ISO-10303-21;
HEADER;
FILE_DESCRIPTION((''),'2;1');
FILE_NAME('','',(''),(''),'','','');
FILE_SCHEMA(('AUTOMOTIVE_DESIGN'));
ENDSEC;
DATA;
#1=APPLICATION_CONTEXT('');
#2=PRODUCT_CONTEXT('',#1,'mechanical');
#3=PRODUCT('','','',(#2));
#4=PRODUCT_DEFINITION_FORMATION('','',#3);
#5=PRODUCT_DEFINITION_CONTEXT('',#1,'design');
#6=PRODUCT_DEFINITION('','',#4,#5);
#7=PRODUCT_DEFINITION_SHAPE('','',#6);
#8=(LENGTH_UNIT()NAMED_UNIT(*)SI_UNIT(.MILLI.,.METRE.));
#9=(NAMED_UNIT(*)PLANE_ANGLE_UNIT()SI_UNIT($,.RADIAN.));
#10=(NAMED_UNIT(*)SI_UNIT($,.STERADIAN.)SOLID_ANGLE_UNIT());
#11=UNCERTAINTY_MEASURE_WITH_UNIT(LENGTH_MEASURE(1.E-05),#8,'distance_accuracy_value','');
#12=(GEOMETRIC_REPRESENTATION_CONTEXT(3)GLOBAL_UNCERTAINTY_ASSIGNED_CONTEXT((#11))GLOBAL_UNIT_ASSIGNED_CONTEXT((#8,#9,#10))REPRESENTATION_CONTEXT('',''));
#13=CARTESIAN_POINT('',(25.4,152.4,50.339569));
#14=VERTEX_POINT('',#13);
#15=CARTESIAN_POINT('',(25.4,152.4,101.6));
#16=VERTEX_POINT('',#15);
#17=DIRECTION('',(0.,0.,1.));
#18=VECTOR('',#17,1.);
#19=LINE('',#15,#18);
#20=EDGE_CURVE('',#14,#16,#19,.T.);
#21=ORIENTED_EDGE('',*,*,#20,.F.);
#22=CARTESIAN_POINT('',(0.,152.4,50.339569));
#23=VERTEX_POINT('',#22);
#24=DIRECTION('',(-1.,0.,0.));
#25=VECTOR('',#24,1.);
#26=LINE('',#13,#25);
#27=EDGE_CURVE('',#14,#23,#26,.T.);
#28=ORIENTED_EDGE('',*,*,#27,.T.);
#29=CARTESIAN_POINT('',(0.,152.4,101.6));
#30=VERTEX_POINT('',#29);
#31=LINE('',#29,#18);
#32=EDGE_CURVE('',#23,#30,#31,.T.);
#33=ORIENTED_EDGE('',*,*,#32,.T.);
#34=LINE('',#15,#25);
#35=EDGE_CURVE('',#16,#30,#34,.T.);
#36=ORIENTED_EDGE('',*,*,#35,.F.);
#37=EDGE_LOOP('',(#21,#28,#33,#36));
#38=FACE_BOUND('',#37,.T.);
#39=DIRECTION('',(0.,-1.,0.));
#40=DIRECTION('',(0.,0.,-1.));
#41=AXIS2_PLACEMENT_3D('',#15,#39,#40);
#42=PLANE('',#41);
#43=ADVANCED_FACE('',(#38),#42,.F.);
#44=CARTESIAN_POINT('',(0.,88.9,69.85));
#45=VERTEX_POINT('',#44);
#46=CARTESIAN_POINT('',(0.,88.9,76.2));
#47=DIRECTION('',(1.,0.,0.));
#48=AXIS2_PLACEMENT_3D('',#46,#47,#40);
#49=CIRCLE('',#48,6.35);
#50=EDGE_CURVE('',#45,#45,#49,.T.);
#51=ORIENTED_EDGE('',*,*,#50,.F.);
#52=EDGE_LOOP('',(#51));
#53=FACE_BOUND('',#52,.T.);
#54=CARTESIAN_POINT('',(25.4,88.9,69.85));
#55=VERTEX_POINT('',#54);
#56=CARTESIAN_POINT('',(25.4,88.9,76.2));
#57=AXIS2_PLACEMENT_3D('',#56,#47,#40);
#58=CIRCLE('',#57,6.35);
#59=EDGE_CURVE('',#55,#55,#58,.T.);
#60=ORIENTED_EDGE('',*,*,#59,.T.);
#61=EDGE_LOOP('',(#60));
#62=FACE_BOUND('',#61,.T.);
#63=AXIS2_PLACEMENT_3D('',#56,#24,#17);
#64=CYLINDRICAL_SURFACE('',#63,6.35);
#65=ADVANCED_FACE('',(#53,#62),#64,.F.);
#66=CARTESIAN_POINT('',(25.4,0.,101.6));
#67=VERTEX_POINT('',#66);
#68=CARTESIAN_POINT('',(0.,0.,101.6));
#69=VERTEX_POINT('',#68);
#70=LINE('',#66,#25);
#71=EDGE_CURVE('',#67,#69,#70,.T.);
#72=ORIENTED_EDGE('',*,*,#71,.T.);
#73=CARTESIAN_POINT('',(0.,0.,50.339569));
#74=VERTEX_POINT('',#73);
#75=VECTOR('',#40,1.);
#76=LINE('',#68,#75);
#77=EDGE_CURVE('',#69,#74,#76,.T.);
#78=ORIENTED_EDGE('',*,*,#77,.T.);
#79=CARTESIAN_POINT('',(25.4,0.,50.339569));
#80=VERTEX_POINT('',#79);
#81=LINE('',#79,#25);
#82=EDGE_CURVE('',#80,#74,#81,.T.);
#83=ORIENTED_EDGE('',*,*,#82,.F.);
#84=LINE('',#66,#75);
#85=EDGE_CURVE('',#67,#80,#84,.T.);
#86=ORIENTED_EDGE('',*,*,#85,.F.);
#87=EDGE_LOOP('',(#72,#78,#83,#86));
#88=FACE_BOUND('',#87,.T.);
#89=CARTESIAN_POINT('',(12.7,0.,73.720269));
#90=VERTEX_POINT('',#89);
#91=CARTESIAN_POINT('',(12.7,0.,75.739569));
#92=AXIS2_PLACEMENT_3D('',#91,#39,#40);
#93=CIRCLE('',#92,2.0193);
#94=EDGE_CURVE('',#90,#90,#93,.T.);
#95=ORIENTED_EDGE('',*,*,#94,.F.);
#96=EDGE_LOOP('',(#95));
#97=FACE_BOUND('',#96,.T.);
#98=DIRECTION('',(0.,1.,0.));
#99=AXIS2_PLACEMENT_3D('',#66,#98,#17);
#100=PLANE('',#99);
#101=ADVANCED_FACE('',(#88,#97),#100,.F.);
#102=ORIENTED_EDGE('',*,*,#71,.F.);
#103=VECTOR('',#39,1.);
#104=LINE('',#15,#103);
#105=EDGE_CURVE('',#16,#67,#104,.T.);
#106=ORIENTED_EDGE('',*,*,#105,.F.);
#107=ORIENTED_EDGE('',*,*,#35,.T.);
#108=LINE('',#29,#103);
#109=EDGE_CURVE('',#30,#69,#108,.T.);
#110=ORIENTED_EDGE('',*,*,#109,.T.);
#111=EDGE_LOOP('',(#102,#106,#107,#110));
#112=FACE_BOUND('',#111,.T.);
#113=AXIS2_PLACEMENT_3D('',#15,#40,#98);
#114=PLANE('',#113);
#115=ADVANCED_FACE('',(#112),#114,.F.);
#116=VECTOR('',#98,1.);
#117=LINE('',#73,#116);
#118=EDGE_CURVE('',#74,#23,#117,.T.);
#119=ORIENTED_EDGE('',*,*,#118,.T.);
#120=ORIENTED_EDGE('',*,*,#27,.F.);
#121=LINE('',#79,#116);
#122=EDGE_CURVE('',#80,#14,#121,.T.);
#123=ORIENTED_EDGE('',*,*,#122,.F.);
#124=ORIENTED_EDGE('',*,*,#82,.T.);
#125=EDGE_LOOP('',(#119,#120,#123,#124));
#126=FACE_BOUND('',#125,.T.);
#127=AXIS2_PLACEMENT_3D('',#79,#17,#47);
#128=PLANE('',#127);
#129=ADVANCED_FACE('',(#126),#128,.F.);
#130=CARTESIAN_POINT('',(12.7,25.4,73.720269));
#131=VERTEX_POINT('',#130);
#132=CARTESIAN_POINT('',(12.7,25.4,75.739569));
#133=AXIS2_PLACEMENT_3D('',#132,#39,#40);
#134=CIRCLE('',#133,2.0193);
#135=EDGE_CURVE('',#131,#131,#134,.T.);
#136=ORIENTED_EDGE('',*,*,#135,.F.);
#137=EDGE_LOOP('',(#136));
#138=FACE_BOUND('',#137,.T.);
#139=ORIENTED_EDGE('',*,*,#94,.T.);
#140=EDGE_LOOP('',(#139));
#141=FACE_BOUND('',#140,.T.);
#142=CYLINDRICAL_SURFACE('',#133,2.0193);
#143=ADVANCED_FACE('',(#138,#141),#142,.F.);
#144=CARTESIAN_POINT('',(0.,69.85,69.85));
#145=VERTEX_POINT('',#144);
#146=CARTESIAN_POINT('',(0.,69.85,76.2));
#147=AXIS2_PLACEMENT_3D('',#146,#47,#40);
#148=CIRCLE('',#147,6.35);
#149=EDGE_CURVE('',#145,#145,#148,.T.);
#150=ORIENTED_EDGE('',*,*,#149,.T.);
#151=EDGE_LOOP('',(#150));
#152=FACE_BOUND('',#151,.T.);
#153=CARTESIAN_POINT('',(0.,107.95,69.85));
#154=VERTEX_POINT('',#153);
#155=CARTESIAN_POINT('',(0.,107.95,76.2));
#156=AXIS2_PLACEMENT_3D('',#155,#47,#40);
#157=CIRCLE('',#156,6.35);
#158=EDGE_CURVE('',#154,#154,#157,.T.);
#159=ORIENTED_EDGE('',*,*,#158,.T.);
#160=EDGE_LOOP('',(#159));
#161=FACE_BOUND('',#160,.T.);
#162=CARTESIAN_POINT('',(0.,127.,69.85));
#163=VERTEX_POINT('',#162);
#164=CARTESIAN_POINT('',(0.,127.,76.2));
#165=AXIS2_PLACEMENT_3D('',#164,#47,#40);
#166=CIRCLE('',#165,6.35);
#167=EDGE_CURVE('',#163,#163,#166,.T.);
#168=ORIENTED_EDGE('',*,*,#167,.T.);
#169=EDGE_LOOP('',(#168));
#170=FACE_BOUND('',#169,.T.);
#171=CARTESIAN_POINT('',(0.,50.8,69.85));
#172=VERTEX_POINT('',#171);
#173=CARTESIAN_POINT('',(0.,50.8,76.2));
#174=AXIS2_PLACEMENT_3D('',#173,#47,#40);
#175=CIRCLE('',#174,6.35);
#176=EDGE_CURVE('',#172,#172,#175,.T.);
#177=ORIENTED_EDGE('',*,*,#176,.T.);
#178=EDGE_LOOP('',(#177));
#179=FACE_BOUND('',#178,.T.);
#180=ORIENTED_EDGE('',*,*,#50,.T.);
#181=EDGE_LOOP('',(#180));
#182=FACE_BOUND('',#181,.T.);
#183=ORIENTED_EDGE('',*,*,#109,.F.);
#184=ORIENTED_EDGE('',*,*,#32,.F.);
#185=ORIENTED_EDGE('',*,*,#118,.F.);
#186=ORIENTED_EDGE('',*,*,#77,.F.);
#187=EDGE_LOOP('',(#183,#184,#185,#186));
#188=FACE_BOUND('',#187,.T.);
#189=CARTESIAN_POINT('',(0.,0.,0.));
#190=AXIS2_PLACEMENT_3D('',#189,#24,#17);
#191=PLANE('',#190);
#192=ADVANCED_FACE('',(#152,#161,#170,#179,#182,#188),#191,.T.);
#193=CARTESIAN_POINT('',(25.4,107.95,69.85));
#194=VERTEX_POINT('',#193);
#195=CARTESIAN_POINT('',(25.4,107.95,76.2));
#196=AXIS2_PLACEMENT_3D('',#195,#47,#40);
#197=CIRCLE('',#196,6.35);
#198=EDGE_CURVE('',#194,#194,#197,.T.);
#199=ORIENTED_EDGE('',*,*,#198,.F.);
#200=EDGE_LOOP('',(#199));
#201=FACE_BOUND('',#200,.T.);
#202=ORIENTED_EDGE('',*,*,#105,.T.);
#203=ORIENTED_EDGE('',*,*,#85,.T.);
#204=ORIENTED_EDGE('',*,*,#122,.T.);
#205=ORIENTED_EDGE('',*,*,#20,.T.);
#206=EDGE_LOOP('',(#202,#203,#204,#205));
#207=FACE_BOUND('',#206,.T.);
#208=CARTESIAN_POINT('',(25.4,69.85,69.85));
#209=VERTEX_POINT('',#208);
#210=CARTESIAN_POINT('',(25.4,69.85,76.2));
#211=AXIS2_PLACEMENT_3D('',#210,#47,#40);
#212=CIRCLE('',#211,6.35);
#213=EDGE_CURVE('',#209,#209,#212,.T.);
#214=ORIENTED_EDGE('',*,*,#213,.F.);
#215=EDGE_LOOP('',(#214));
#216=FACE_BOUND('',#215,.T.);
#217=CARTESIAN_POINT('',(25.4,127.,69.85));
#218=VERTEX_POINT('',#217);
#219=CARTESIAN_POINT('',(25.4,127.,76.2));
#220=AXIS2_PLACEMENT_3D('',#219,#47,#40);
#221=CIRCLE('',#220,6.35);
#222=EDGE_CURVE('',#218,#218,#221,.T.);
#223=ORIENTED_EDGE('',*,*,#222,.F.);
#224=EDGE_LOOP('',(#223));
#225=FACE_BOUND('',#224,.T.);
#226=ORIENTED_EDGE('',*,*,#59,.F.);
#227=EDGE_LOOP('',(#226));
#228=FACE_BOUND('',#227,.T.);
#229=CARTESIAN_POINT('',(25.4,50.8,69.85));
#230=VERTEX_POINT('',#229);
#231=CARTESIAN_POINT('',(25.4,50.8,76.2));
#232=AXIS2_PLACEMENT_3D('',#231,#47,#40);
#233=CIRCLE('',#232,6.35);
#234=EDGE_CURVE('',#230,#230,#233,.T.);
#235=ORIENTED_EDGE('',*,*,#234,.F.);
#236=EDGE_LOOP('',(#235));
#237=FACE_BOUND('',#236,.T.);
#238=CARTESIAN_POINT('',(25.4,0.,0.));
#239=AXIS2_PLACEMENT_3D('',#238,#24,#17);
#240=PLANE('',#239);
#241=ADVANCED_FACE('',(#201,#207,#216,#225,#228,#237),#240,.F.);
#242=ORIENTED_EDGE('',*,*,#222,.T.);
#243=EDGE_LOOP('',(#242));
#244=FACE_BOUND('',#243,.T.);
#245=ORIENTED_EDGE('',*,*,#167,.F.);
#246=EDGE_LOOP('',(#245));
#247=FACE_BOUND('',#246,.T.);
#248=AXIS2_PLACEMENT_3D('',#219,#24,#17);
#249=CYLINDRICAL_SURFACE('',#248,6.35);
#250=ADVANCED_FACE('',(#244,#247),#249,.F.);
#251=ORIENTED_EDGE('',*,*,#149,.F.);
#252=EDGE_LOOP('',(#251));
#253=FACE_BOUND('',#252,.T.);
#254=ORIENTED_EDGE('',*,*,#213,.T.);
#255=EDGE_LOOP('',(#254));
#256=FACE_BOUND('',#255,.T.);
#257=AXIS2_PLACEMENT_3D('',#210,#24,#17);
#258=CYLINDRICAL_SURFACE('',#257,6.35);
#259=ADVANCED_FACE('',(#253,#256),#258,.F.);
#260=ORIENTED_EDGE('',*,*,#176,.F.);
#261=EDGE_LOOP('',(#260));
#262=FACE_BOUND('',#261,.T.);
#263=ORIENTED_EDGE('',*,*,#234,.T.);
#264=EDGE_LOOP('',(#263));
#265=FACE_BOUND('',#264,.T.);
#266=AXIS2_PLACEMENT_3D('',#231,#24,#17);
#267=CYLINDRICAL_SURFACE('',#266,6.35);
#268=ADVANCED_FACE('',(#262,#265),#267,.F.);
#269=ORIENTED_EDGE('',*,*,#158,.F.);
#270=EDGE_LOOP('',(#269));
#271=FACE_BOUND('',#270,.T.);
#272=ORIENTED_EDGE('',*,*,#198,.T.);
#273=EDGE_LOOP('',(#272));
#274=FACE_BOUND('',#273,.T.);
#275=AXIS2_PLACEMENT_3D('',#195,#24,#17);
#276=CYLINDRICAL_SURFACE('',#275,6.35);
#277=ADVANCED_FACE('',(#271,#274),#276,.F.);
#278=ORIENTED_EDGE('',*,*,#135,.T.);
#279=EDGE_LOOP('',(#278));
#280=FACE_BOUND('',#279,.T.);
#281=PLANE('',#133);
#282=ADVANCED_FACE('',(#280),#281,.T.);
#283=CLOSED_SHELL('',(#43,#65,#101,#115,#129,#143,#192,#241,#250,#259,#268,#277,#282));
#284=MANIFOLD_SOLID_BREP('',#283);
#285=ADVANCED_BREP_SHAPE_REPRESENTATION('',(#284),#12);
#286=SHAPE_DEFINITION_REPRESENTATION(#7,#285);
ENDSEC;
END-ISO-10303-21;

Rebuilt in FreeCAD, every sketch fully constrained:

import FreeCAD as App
import Part
import Sketcher
from FreeCAD import Vector
Q = App.Units.Quantity


def add_polygon(sketch, points):
    """Adds a closed chain of lines whose ends are joined by coincident constraints."""
    first, n = sketch.GeometryCount, len(points)
    for a, b in zip(points, points[1:] + points[:1]):
        sketch.addGeometry(Part.LineSegment(App.Vector(*a, 0), App.Vector(*b, 0)), False)
    for i in range(n):
        sketch.addConstraint(Sketcher.Constraint("Coincident", first + i, 2, first + (i + 1) % n, 1))

doc = App.newDocument("Part")
body = doc.addObject("PartDesign::Body", "Body")

# Sketch on YZ plane
sketch1 = body.newObject("Sketcher::SketchObject", "Sketch")
sketch1.AttachmentSupport = (doc.getObject("YZ_Plane"), [""])
sketch1.MapMode = "FlatFace"
add_polygon(sketch1, [(152.4, 101.6), (0, 101.6), (0, 50.339569), (152.4, 50.339569)])  # lines 0-3
sketch1.addGeometry(Part.Circle(Vector(50.8, 76.2, 0), Vector(0, 0, 1), 6.35), False)  # 4
sketch1.addGeometry(Part.Circle(Vector(69.85, 76.2, 0), Vector(0, 0, 1), 6.35), False)  # 5
sketch1.addGeometry(Part.Circle(Vector(88.9, 76.2, 0), Vector(0, 0, 1), 6.35), False)  # 6
sketch1.addGeometry(Part.Circle(Vector(107.95, 76.2, 0), Vector(0, 0, 1), 6.35), False)  # 7
sketch1.addGeometry(Part.Circle(Vector(127, 76.2, 0), Vector(0, 0, 1), 6.35), False)  # 8
sketch1.addConstraint(Sketcher.Constraint("Horizontal", 0))
sketch1.addConstraint(Sketcher.Constraint("Vertical", 1))
sketch1.addConstraint(Sketcher.Constraint("Horizontal", 2))
sketch1.addConstraint(Sketcher.Constraint("Vertical", 3))
sketch1.addConstraint(Sketcher.Constraint("Equal", 4, 5))
sketch1.addConstraint(Sketcher.Constraint("Equal", 5, 6))
sketch1.addConstraint(Sketcher.Constraint("Equal", 6, 7))
sketch1.addConstraint(Sketcher.Constraint("Equal", 7, 8))
sketch1.addConstraint(Sketcher.Constraint("PointOnObject", 0, 2, -2))
sketch1.addConstraint(Sketcher.Constraint("Horizontal", 4, 3, 5, 3))
sketch1.addConstraint(Sketcher.Constraint("Horizontal", 5, 3, 6, 3))
sketch1.addConstraint(Sketcher.Constraint("Horizontal", 6, 3, 7, 3))
sketch1.addConstraint(Sketcher.Constraint("Horizontal", 7, 3, 8, 3))
sketch1.addConstraint(Sketcher.Constraint("Diameter", 4, Q("0.5 in")))
sketch1.addConstraint(Sketcher.Constraint("DistanceX", 0, 2, 0, 1, Q("6 in")))
sketch1.addConstraint(Sketcher.Constraint("DistanceX", -1, 1, 4, 3, Q("2 in")))
sketch1.addConstraint(Sketcher.Constraint("DistanceY", -1, 1, 4, 3, Q("3 in")))
sketch1.addConstraint(Sketcher.Constraint("DistanceX", -1, 1, 8, 3, Q("5 in")))
sketch1.addConstraint(Sketcher.Constraint("DistanceY", -1, 1, 0, 2, Q("4 in")))
sketch1.addConstraint(Sketcher.Constraint("DistanceX", -1, 1, 6, 3, Q("3.5 in")))
sketch1.addConstraint(Sketcher.Constraint("DistanceX", 5, 3, 7, 3, Q("1.5 in")))
sketch1.addConstraint(Sketcher.Constraint("DistanceX", -1, 1, 5, 3, Q("2.75 in")))
sketch1.addConstraint(Sketcher.Constraint("DistanceY", 1, 2, 1, 1, 51.260431))
pad1 = body.newObject("PartDesign::Pad", "Pad")
pad1.Profile = sketch1
pad1.Length = Q("1 in")

# Sketch on XZ plane
sketch2 = body.newObject("Sketcher::SketchObject", "Sketch001")
sketch2.AttachmentSupport = (doc.getObject("XZ_Plane"), [""])
sketch2.MapMode = "FlatFace"
sketch2.addGeometry(Part.Circle(Vector(12.7, 75.739569, 0), Vector(0, 0, 1), 2.0193), False)
sketch2.addConstraint(Sketcher.Constraint("Diameter", 0, Q("0.159 in")))
sketch2.addConstraint(Sketcher.Constraint("DistanceX", -1, 1, 0, 3, Q("0.5 in")))
sketch2.addConstraint(Sketcher.Constraint("DistanceY", -1, 1, 0, 3, 75.739569))
pocket1 = body.newObject("PartDesign::Pocket", "Pocket")
pocket1.Profile = sketch2
pocket1.Length = Q("1 in")

doc.recompute()
